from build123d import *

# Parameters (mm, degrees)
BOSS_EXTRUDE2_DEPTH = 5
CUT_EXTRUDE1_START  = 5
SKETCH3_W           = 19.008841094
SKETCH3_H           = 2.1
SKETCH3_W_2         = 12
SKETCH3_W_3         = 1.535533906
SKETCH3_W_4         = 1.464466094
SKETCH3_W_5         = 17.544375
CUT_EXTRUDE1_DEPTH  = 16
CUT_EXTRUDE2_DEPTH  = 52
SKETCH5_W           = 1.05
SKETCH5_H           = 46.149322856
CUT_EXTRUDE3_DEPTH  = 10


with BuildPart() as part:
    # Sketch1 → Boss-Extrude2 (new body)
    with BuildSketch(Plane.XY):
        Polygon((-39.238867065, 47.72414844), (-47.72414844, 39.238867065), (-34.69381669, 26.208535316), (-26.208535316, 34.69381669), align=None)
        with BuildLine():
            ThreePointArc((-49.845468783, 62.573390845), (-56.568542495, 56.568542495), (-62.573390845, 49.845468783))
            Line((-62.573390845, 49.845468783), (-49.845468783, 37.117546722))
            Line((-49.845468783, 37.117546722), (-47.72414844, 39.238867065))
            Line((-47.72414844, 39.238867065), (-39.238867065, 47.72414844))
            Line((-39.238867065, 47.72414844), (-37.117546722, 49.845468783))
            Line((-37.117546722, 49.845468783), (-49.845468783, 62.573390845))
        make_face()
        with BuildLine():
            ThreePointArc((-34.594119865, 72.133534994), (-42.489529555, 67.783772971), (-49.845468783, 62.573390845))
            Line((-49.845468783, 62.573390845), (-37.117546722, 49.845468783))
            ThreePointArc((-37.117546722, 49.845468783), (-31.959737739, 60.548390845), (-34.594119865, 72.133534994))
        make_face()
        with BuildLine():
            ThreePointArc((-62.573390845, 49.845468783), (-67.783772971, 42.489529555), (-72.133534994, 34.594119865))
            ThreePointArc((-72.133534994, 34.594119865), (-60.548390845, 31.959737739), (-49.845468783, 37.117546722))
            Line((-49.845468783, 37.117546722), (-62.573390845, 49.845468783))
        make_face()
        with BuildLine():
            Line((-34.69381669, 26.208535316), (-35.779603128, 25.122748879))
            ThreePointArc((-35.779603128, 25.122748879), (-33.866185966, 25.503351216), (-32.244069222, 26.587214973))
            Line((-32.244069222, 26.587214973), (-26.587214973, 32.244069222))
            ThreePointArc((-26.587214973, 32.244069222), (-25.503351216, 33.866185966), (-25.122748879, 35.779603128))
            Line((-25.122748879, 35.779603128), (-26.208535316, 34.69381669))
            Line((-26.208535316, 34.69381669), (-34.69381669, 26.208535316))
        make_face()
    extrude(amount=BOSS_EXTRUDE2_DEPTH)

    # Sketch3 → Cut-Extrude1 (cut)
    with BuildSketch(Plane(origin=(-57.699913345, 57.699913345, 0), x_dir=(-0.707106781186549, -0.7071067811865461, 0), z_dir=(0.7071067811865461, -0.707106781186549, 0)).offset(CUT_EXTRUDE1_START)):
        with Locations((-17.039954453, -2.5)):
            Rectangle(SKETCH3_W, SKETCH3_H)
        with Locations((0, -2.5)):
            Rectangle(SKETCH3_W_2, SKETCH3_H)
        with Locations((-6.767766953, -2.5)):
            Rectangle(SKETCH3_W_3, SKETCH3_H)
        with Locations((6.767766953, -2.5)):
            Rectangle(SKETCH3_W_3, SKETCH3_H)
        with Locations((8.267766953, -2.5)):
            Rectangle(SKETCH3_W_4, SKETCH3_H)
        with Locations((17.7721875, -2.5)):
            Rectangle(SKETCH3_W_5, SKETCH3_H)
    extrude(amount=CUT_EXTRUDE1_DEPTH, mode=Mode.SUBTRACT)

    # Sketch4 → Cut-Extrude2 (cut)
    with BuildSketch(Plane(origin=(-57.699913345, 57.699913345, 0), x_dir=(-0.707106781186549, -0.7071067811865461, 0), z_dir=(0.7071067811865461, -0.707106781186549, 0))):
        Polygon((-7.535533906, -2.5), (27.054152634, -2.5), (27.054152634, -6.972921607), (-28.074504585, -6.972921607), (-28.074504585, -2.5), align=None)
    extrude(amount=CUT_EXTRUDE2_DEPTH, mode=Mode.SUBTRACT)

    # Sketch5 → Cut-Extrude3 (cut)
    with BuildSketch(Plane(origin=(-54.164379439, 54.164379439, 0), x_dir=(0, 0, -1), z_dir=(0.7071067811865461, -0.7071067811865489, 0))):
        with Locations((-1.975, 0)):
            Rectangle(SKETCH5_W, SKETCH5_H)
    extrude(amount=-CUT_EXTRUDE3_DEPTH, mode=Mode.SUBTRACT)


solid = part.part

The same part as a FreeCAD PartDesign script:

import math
import FreeCAD as App
import Part
import Sketcher
from FreeCAD import Vector
Q = App.Units.Quantity


def add_polygon(sketch, points):
    """Adds a closed chain of lines whose ends are joined by coincident constraints."""
    first, n = sketch.GeometryCount, len(points)
    for a, b in zip(points, points[1:] + points[:1]):
        sketch.addGeometry(Part.LineSegment(App.Vector(*a, 0), App.Vector(*b, 0)), False)
    for i in range(n):
        sketch.addConstraint(Sketcher.Constraint("Coincident", first + i, 2, first + (i + 1) % n, 1))

doc = App.newDocument("Part")
body = doc.addObject("PartDesign::Body", "Body")

sketch1 = body.newObject("Sketcher::SketchObject", "Sketch")
sketch1.AttachmentSupport = (doc.getObject("XY_Plane"), [""])
sketch1.MapMode = "FlatFace"
sketch1.addGeometry([
    Part.LineSegment(Vector(-47.7, 39.2, 0), Vector(-34.7, 26.2, 0)),
    Part.LineSegment(Vector(-34.7, 26.2, 0), Vector(-35.8, 25.1, 0)),
    Part.ArcOfCircle(Part.Circle(Vector(-35.8, 30.1, 0), Vector(0, 0, 1), 5), math.radians(-90), math.radians(-45)),
    Part.LineSegment(Vector(-32.2, 26.6, 0), Vector(-26.6, 32.2, 0)),
    Part.ArcOfCircle(Part.Circle(Vector(-30.1, 35.8, 0), Vector(0, 0, 1), 5), math.radians(-45), math.radians(0)),
    Part.LineSegment(Vector(-25.1, 35.8, 0), Vector(-26.2, 34.7, 0)),
    Part.LineSegment(Vector(-26.2, 34.7, 0), Vector(-39.2, 47.7, 0)),
    Part.LineSegment(Vector(-39.2, 47.7, 0), Vector(-37.1, 49.8, 0)),
    Part.ArcOfCircle(Part.Circle(Vector(-49.8, 62.6, 0), Vector(0, 0, 1), 18), math.radians(-45), math.radians(32)),
    Part.ArcOfCircle(Part.Circle(Vector(0, 0, 0), Vector(0, 0, 1), 80), math.radians(115.62), math.radians(128.54)),
    Part.ArcOfCircle(Part.Circle(Vector(0, 0, 0), Vector(0, 0, 1), 80), math.radians(128.54), math.radians(141.46)),
    Part.ArcOfCircle(Part.Circle(Vector(0, 0, 0), Vector(0, 0, 1), 80), math.radians(141.46), math.radians(154.38)),
    Part.ArcOfCircle(Part.Circle(Vector(-62.6, 49.8, 0), Vector(0, 0, 1), 18), math.radians(-122), math.radians(-45)),
    Part.LineSegment(Vector(-49.8, 37.1, 0), Vector(-47.7, 39.2, 0)),
], False)
sketch1.addConstraint([
    Sketcher.Constraint("Coincident", 0, 2, 1, 1),
    Sketcher.Constraint("Coincident", 1, 2, 2, 1),
    Sketcher.Constraint("Tangent", 2, 2, 3, 1),
    Sketcher.Constraint("Tangent", 3, 2, 4, 1),
    Sketcher.Constraint("Coincident", 4, 2, 5, 1),
    Sketcher.Constraint("Coincident", 5, 2, 6, 1),
    Sketcher.Constraint("Coincident", 6, 2, 7, 1),
    Sketcher.Constraint("Tangent", 7, 2, 8, 1),
    Sketcher.Constraint("Coincident", 8, 2, 9, 1),
    Sketcher.Constraint("Tangent", 9, 2, 10, 1),
    Sketcher.Constraint("Tangent", 10, 2, 11, 1),
    Sketcher.Constraint("Coincident", 11, 2, 12, 1),
    Sketcher.Constraint("Tangent", 12, 2, 13, 1),
    Sketcher.Constraint("Coincident", 13, 2, 0, 1),
    Sketcher.Constraint("Coincident", 9, 3, -1, 1),
    Sketcher.Constraint("Coincident", 11, 3, -1, 1),
    Sketcher.Constraint("Coincident", 9, 2, 8, 3),
    Sketcher.Constraint("Coincident", 10, 2, 12, 3),
    Sketcher.Constraint("Equal", 2, 4),
    Sketcher.Constraint("Equal", 8, 12),
    Sketcher.Constraint("Perpendicular", 0, 1),
    Sketcher.Constraint("Parallel", 1, 3),
    Sketcher.Constraint("Parallel", 3, 5),
    Sketcher.Constraint("Perpendicular", 5, 6),
    Sketcher.Constraint("Perpendicular", 6, 7),
    Sketcher.Constraint("Parallel", 7, 13),
    Sketcher.Constraint("Horizontal", 12, 3, 7, 2),
    Sketcher.Constraint("Vertical", 2, 3, 1, 2),
    Sketcher.Constraint("Vertical", 9, 2, 12, 2),
    Sketcher.Constraint("Equal", 1, 5),
    Sketcher.Constraint("Equal", 0, 6),
    Sketcher.Constraint("Equal", 7, 13),
    Sketcher.Constraint("Radius", 2, Q("5 mm")),
    Sketcher.Constraint("Radius", 8, Q("18 mm")),
    Sketcher.Constraint("Radius", 9, Q("80 mm")),
    Sketcher.Constraint("Angle", 0, Q("-45 deg")),
    Sketcher.Constraint("Distance", 3, Q("8 mm")),
    Sketcher.Constraint("Distance", 7, Q("3 mm")),
    Sketcher.Constraint("DistanceY", 2, 3, 6, 2, Q("17.6014 mm")),
])
pad1 = body.newObject("PartDesign::Pad", "Pad")
pad1.Profile = sketch1
pad1.Length = 5

sketch2 = body.newObject("Sketcher::SketchObject", "Sketch001")
sketch2.Placement = App.Placement(Vector(-54.164379, 54.164379, 0), App.Rotation(Vector(-0.707106781, -0.707106781, 0), Vector(0, 0, -0.999999999), Vector(0.707106781, -0.707106781, 0), "ZXY"))
add_polygon(sketch2, [(-26.5, -1.4), (-26.5, -3.5), (26.5, -3.5), (26.5, -1.4)])
sketch2.addConstraint([
    Sketcher.Constraint("Vertical", 0),
    Sketcher.Constraint("Horizontal", 1),
    Sketcher.Constraint("Vertical", 2),
    Sketcher.Constraint("Horizontal", 3),
    Sketcher.Constraint("DistanceY", 0, 2, 0, 1, Q("2.1 mm")),
    Sketcher.Constraint("DistanceY", 0, 2, -1, 1, Q("3.55 mm")),
    Sketcher.Constraint("DistanceX", 1, 1, 1, 2, Q("53.08875 mm")),
    Sketcher.Constraint("DistanceX", 0, 2, -1, 1, Q("26.544375 mm")),
])
pocket1 = body.newObject("PartDesign::Pocket", "Pocket")
pocket1.Profile = sketch2
pocket1.Length = 16
pocket1.Reversed = True

sketch3 = body.newObject("Sketcher::SketchObject", "Sketch002")
sketch3.Placement = App.Placement(Vector(-57.699913, 57.699913, 0), App.Rotation(Vector(-0.707106781, -0.707106781, 0), Vector(0, 0, -0.999999999), Vector(0.707106781, -0.707106781, 0), "ZXY"))
add_polygon(sketch3, [(27.1, -2.5), (-28.1, -2.5), (-28.1, -7), (27.1, -7)])
sketch3.addConstraint([
    Sketcher.Constraint("Horizontal", 0),
    Sketcher.Constraint("Vertical", 1),
    Sketcher.Constraint("Horizontal", 2),
    Sketcher.Constraint("Vertical", 3),
    Sketcher.Constraint("DistanceY", 0, 2, -1, 1, Q("2.5 mm")),
    Sketcher.Constraint("DistanceY", 1, 2, 1, 1, Q("4.472922 mm")),
    Sketcher.Constraint("DistanceX", 0, 2, 0, 1, Q("55.128657 mm")),
    Sketcher.Constraint("DistanceX", 0, 2, -1, 1, Q("28.074505 mm")),
])
pocket2 = body.newObject("PartDesign::Pocket", "Pocket001")
pocket2.Profile = sketch3
pocket2.Length = 52
pocket2.Reversed = True

sketch4 = body.newObject("Sketcher::SketchObject", "Sketch003")
sketch4.Placement = App.Placement(Vector(-54.164379, 54.164379, 0), App.Rotation(Vector(0, 0, -1), Vector(0.707106781, 0.707106781, 0), Vector(0.707106781, -0.707106781, 0), "ZXY"))
add_polygon(sketch4, [(-2.5, 23.1), (-2.5, -23.1), (-1.4, -23.1), (-1.4, 23.1)])
sketch4.addConstraint([
    Sketcher.Constraint("Vertical", 0),
    Sketcher.Constraint("Horizontal", 1),
    Sketcher.Constraint("Vertical", 2),
    Sketcher.Constraint("Horizontal", 3),
    Sketcher.Constraint("DistanceX", 1, 1, 1, 2, Q("1.05 mm")),
    Sketcher.Constraint("DistanceX", 0, 2, -1, 1, Q("2.5 mm")),
    Sketcher.Constraint("DistanceY", 0, 2, 0, 1, Q("46.149323 mm")),
    Sketcher.Constraint("DistanceY", 0, 2, -1, 1, Q("23.074661 mm")),
])
pocket3 = body.newObject("PartDesign::Pocket", "Pocket002")
pocket3.Profile = sketch4
pocket3.Length = 10

doc.recompute()
